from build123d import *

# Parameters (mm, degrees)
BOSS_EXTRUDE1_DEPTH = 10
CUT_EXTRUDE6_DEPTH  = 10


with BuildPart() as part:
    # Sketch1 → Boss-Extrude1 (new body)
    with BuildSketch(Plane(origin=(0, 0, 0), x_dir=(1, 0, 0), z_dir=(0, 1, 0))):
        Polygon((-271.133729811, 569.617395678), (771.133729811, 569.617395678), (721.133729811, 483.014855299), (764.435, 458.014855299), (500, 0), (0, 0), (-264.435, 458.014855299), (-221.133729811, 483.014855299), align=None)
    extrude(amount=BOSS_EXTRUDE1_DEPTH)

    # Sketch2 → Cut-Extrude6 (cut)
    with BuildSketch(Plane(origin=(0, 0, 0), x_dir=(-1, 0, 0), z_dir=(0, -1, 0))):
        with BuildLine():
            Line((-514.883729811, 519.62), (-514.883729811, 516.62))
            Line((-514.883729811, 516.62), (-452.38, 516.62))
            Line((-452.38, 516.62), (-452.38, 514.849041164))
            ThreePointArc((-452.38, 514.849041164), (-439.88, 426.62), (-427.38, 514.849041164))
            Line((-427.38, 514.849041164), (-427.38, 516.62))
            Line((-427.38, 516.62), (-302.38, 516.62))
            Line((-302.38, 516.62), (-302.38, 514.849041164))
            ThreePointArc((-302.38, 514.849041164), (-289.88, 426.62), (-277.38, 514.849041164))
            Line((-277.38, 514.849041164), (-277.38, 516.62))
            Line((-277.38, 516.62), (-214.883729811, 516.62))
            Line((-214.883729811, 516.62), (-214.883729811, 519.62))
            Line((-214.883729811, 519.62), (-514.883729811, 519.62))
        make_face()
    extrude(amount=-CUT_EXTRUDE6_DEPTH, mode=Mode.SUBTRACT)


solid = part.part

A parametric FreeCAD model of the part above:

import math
import FreeCAD as App
import Part
import Sketcher

V = App.Vector
Q = App.Units.Quantity


def add_polygon(sketch, points):
    """Adds a closed chain of lines whose ends are joined by coincident constraints."""
    first, n = sketch.GeometryCount, len(points)
    for a, b in zip(points, points[1:] + points[:1]):
        sketch.addGeometry(Part.LineSegment(App.Vector(*a, 0), App.Vector(*b, 0)), False)
    for i in range(n):
        sketch.addConstraint(Sketcher.Constraint("Coincident", first + i, 2, first + (i + 1) % n, 1))

doc = App.newDocument("Part")
body = doc.addObject("PartDesign::Body", "Body")

# Sketch on XZ plane
sketch1 = body.newObject("Sketcher::SketchObject", "Sketch")
sketch1.AttachmentSupport = (doc.getObject("XZ_Plane"), [""])
sketch1.MapMode = "FlatFace"
add_polygon(sketch1, [(771, -570), (-271, -570), (-221, -483), (-264, -458), (0, 0), (500, 0), (764, -458), (721, -483)])  # lines 0-7
sketch1.addConstraint(Sketcher.Constraint("Horizontal", 0))
sketch1.addConstraint(Sketcher.Constraint("Horizontal", 4))
sketch1.addConstraint(Sketcher.Constraint("Coincident", 3, 2, -1, 1))
sketch1.addConstraint(Sketcher.Constraint("Perpendicular", 1, 2))
sketch1.addConstraint(Sketcher.Constraint("Perpendicular", 2, 3))
sketch1.addConstraint(Sketcher.Constraint("Perpendicular", 5, 6))
sketch1.addConstraint(Sketcher.Constraint("Perpendicular", 6, 7))
sketch1.addConstraint(Sketcher.Constraint("Horizontal", 2, 2, 5, 2))
sketch1.addConstraint(Sketcher.Constraint("Horizontal", 1, 2, 6, 2))
sketch1.addConstraint(Sketcher.Constraint("Equal", 3, 5))
sketch1.addConstraint(Sketcher.Constraint("DistanceX", 4, 1, 4, 2, Q("500 mm")))
sketch1.addConstraint(Sketcher.Constraint("Angle", 1, Q("60 deg")))
sketch1.addConstraint(Sketcher.Constraint("Distance", 1, Q("100 mm")))
sketch1.addConstraint(Sketcher.Constraint("Distance", 2, Q("50 mm")))
sketch1.addConstraint(Sketcher.Constraint("Distance", 3, Q("528.87 mm")))
pad1 = body.newObject("PartDesign::Pad", "Pad")
pad1.Profile = sketch1
pad1.Length = 10
pad1.Reversed = True

# Sketch on XZ plane
sketch2 = body.newObject("Sketcher::SketchObject", "Sketch001")
sketch2.AttachmentSupport = (doc.getObject("XZ_Plane"), [""])
sketch2.MapMode = "FlatFace"
sketch2.addGeometry(Part.LineSegment(V(514.9, -519.6, 0), V(514.9, -516.6, 0)), False)
sketch2.addGeometry(Part.LineSegment(V(514.9, -516.6, 0), V(452.4, -516.6, 0)), False)
sketch2.addGeometry(Part.LineSegment(V(452.4, -516.6, 0), V(452.4, -514.8, 0)), False)
sketch2.addGeometry(Part.ArcOfCircle(Part.Circle(V(439.9, -471.6, 0), V(0, 0, 1), 45), math.radians(-74), math.radians(254)), False)
sketch2.addGeometry(Part.LineSegment(V(427.4, -514.8, 0), V(427.4, -516.6, 0)), False)
sketch2.addGeometry(Part.LineSegment(V(427.4, -516.6, 0), V(302.4, -516.6, 0)), False)
sketch2.addGeometry(Part.LineSegment(V(302.4, -516.6, 0), V(302.4, -514.8, 0)), False)
sketch2.addGeometry(Part.ArcOfCircle(Part.Circle(V(289.9, -471.6, 0), V(0, 0, 1), 45), math.radians(-74), math.radians(254)), False)
sketch2.addGeometry(Part.LineSegment(V(277.4, -514.8, 0), V(277.4, -516.6, 0)), False)
sketch2.addGeometry(Part.LineSegment(V(277.4, -516.6, 0), V(214.9, -516.6, 0)), False)
sketch2.addGeometry(Part.LineSegment(V(214.9, -516.6, 0), V(214.9, -519.6, 0)), False)
sketch2.addGeometry(Part.LineSegment(V(214.9, -519.6, 0), V(514.9, -519.6, 0)), False)
sketch2.addConstraint(Sketcher.Constraint("Coincident", 0, 2, 1, 1))
sketch2.addConstraint(Sketcher.Constraint("Coincident", 1, 2, 2, 1))
sketch2.addConstraint(Sketcher.Constraint("Coincident", 2, 2, 3, 1))
sketch2.addConstraint(Sketcher.Constraint("Coincident", 3, 2, 4, 1))
sketch2.addConstraint(Sketcher.Constraint("Coincident", 4, 2, 5, 1))
sketch2.addConstraint(Sketcher.Constraint("Coincident", 5, 2, 6, 1))
sketch2.addConstraint(Sketcher.Constraint("Coincident", 6, 2, 7, 1))
sketch2.addConstraint(Sketcher.Constraint("Coincident", 7, 2, 8, 1))
sketch2.addConstraint(Sketcher.Constraint("Coincident", 8, 2, 9, 1))
sketch2.addConstraint(Sketcher.Constraint("Coincident", 9, 2, 10, 1))
sketch2.addConstraint(Sketcher.Constraint("Coincident", 10, 2, 11, 1))
sketch2.addConstraint(Sketcher.Constraint("Coincident", 11, 2, 0, 1))
sketch2.addConstraint(Sketcher.Constraint("Vertical", 0))
sketch2.addConstraint(Sketcher.Constraint("Horizontal", 1))
sketch2.addConstraint(Sketcher.Constraint("Vertical", 2))
sketch2.addConstraint(Sketcher.Constraint("Vertical", 4))
sketch2.addConstraint(Sketcher.Constraint("Horizontal", 5))
sketch2.addConstraint(Sketcher.Constraint("Vertical", 6))
sketch2.addConstraint(Sketcher.Constraint("Vertical", 8))
sketch2.addConstraint(Sketcher.Constraint("Horizontal", 9))
sketch2.addConstraint(Sketcher.Constraint("Vertical", 10))
sketch2.addConstraint(Sketcher.Constraint("Horizontal", 11))
sketch2.addConstraint(Sketcher.Constraint("Equal", 3, 7))
sketch2.addConstraint(Sketcher.Constraint("Horizontal", 3, 3, 7, 3))
sketch2.addConstraint(Sketcher.Constraint("Horizontal", 2, 2, 3, 2))
sketch2.addConstraint(Sketcher.Constraint("Horizontal", 1, 2, 4, 2))
sketch2.addConstraint(Sketcher.Constraint("Horizontal", 3, 2, 6, 2))
sketch2.addConstraint(Sketcher.Constraint("Horizontal", 6, 2, 7, 2))
sketch2.addConstraint(Sketcher.Constraint("Horizontal", 5, 2, 8, 2))
sketch2.addConstraint(Sketcher.Constraint("Radius", 3, Q("45 mm")))
sketch2.addConstraint(Sketcher.Constraint("DistanceX", 5, 2, 5, 1, Q("125 mm")))
sketch2.addConstraint(Sketcher.Constraint("DistanceX", 11, 1, 11, 2, Q("300 mm")))
sketch2.addConstraint(Sketcher.Constraint("DistanceY", 0, 1, 0, 2, Q("3 mm")))
sketch2.addConstraint(Sketcher.Constraint("DistanceX", 7, 3, 3, 3, Q("150 mm")))
sketch2.addConstraint(Sketcher.Constraint("DistanceY", 0, 2, 3, 3, Q("45 mm")))
sketch2.addConstraint(Sketcher.Constraint("DistanceX", -1, 1, 3, 3, Q("439.88 mm")))
sketch2.addConstraint(Sketcher.Constraint("DistanceY", 3, 3, -1, 1, Q("471.62 mm")))
sketch2.addConstraint(Sketcher.Constraint("DistanceX", 1, 2, 1, 1, Q("62.50373 mm")))
pocket1 = body.newObject("PartDesign::Pocket", "Pocket")
pocket1.Profile = sketch2
pocket1.Length = 10

doc.recompute()
